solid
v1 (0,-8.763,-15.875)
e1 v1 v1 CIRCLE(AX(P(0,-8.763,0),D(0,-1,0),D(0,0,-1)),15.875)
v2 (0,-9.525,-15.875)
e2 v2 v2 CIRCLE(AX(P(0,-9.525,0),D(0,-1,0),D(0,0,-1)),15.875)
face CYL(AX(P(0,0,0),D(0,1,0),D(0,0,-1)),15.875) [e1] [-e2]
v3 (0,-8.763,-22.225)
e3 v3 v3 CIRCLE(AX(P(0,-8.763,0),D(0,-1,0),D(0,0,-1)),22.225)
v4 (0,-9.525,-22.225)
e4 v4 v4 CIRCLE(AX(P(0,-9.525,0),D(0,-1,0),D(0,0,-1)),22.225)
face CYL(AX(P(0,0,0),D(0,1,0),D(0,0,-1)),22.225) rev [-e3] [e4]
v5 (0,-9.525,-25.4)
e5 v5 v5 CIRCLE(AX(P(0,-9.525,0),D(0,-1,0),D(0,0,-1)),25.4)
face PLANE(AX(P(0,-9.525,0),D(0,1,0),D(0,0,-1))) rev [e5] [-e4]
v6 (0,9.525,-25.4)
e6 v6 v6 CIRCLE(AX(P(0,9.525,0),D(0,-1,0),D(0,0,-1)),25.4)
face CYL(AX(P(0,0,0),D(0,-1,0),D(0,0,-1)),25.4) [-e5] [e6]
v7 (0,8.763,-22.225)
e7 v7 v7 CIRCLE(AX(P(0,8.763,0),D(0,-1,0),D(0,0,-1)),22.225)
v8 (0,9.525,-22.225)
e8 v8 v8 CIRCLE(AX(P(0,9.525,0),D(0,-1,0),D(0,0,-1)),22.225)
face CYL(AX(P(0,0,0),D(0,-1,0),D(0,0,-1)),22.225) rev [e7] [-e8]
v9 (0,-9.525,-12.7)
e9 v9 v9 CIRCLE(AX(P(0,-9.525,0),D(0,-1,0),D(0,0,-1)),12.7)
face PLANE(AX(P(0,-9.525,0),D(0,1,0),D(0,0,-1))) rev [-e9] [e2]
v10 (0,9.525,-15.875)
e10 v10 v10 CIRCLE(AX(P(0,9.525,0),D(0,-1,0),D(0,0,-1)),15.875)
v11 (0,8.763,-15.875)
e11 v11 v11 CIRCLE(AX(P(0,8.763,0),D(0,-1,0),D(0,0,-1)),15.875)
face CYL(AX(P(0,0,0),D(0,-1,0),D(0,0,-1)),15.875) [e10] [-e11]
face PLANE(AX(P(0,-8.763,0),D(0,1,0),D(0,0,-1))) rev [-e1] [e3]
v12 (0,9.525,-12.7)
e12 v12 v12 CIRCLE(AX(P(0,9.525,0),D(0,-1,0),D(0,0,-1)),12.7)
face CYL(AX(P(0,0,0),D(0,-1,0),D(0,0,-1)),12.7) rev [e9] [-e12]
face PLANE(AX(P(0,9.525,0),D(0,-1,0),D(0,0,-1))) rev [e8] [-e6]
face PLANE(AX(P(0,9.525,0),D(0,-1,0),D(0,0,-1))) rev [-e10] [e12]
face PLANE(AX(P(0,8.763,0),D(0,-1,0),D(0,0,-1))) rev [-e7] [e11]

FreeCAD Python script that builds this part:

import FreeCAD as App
import Part
import Sketcher
from FreeCAD import Vector
Q = App.Units.Quantity

doc = App.newDocument("Part")
params = doc.addObject("Spreadsheet::Sheet", "Params")
for row, (alias, value) in enumerate([
    ("sketch1_width", "0.5 in"),
    ("sketch1_width2", "0.25 in"),
    ("sketch1_height", "0.03 in"),
    ("sketch1_height2", "0.375 in"),
    ("revolution_angle", "360 deg"),
], start=1):
    params.set(f"A{row}", alias)
    params.set(f"B{row}", "=" + value)
    params.setAlias(f"B{row}", alias)

body = doc.addObject("PartDesign::Body", "Body")

# Sketch on XY plane
sketch1 = body.newObject("Sketcher::SketchObject", "Sketch")
sketch1.AttachmentSupport = (doc.getObject("XY_Plane"), [""])
sketch1.MapMode = "FlatFace"
sketch1.addGeometry([
    Part.LineSegment(Vector(15.875, 9.525, 0), Vector(12.7, 9.525, 0)),  # 0
    Part.LineSegment(Vector(12.7, 9.525, 0), Vector(12.7, 0, 0)),  # 1
    Part.LineSegment(Vector(12.7, 0, 0), Vector(25.4, 0, 0)),  # 2
    Part.LineSegment(Vector(25.4, 0, 0), Vector(25.4, 9.525, 0)),  # 3
    Part.LineSegment(Vector(25.4, 9.525, 0), Vector(22.225, 9.525, 0)),  # 4
    Part.LineSegment(Vector(22.225, 9.525, 0), Vector(22.225, 8.763, 0)),  # 5
    Part.LineSegment(Vector(22.225, 8.763, 0), Vector(15.875, 8.763, 0)),  # 6
    Part.LineSegment(Vector(15.875, 8.763, 0), Vector(15.875, 9.525, 0)),  # 7
], False)
sketch1.addConstraint([
    Sketcher.Constraint("Coincident", 0, 2, 1, 1),
    Sketcher.Constraint("Coincident", 1, 2, 2, 1),
    Sketcher.Constraint("Coincident", 2, 2, 3, 1),
    Sketcher.Constraint("Coincident", 3, 2, 4, 1),
    Sketcher.Constraint("Coincident", 4, 2, 5, 1),
    Sketcher.Constraint("Coincident", 5, 2, 6, 1),
    Sketcher.Constraint("Coincident", 6, 2, 7, 1),
    Sketcher.Constraint("Coincident", 7, 2, 0, 1),
    Sketcher.Constraint("Horizontal", 0),
    Sketcher.Constraint("Vertical", 1),
    Sketcher.Constraint("Horizontal", 2),
    Sketcher.Constraint("Vertical", 3),
    Sketcher.Constraint("Horizontal", 4),
    Sketcher.Constraint("Vertical", 5),
    Sketcher.Constraint("Horizontal", 6),
    Sketcher.Constraint("Vertical", 7),
    Sketcher.Constraint("PointOnObject", 1, 2, -1),
    Sketcher.Constraint("Horizontal", 0, 2, 3, 2),
    Sketcher.Constraint("Equal", 0, 4),
    Sketcher.Constraint("DistanceX", 2, 1, 2, 2, Q("0.5 in")),
    Sketcher.Constraint("DistanceX", -1, 1, 2, 2, Q("1 in")),
    Sketcher.Constraint("DistanceX", 6, 2, 6, 1, Q("0.25 in")),
    Sketcher.Constraint("DistanceY", 5, 2, 5, 1, Q("0.03 in")),
    Sketcher.Constraint("DistanceY", 1, 2, 1, 1, Q("0.375 in")),
])
sketch1.setExpression("Constraints[19]", "Params.sketch1_width")
sketch1.setExpression("Constraints[21]", "Params.sketch1_width2")
sketch1.setExpression("Constraints[22]", "Params.sketch1_height")
sketch1.setExpression("Constraints[23]", "Params.sketch1_height2")
revolution = body.newObject("PartDesign::Revolution", "Revolution")
revolution.Profile = sketch1
revolution.ReferenceAxis = (sketch1, ["V_Axis"])
revolution.setExpression("Angle", "Params.revolution_angle")
body2 = doc.addObject("PartDesign::Body", "Body001")
doc.recompute()

body2.BaseFeature = body
doc.recompute()

mirroring = doc.addObject("Part::Mirroring", "Mirroring")
mirroring.Source = body
mirroring.Base = Vector(0, 0, 0)
mirroring.Normal = Vector(0, 1, 0)
body3 = doc.addObject("PartDesign::Body", "Body002")
body3.BaseFeature = mirroring
boolean = body2.newObject("PartDesign::Boolean", "Boolean")
boolean.Type = "Fuse"
boolean.addObjects([body3])
doc.recompute()
mirroring.Visibility = False

doc.recompute()
